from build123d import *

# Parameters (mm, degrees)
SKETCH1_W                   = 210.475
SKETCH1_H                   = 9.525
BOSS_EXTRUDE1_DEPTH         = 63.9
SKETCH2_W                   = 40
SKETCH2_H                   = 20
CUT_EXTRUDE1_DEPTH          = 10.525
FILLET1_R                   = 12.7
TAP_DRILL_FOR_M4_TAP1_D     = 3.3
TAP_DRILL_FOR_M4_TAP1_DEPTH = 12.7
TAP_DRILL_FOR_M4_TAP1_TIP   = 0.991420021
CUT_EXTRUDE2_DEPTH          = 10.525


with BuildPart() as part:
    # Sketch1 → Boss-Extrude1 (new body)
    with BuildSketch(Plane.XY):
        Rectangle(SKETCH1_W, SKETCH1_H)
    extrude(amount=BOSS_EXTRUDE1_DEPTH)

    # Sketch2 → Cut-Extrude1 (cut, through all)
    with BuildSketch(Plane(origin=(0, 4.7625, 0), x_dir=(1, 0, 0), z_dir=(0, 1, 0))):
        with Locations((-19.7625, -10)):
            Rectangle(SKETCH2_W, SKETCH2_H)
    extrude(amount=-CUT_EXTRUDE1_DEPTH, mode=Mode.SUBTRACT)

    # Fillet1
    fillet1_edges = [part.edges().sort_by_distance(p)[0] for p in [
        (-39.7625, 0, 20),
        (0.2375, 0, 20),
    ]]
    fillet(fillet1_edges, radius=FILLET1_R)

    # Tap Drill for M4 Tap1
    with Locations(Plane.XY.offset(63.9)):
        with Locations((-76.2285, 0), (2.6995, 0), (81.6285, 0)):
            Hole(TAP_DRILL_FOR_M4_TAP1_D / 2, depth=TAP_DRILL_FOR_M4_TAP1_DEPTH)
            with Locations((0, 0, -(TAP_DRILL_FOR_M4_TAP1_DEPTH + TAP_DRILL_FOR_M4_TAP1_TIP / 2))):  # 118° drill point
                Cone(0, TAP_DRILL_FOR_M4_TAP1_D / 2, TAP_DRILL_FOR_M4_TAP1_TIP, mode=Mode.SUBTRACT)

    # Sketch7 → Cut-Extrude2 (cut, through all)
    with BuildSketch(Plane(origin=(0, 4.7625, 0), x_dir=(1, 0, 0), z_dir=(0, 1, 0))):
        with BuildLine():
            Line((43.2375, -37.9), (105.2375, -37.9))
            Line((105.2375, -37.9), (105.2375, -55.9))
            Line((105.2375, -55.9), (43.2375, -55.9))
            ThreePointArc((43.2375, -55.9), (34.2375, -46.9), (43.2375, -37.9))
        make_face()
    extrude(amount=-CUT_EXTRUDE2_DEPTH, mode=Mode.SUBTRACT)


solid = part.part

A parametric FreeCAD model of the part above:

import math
import FreeCAD as App
import Part
import Sketcher
from FreeCAD import Vector


def edges_at(feature, points):
    """Names of the edges that pass closest to the given points."""
    edges = feature.Shape.Edges
    near = lambda p: min(range(len(edges)), key=lambda i: edges[i].distToShape(Part.Vertex(*p))[0])
    return sorted({f"Edge{near(p) + 1}" for p in points})


def add_polygon(sketch, points):
    """Adds a closed chain of lines whose ends are joined by coincident constraints."""
    first, n = sketch.GeometryCount, len(points)
    for a, b in zip(points, points[1:] + points[:1]):
        sketch.addGeometry(Part.LineSegment(App.Vector(*a, 0), App.Vector(*b, 0)), False)
    for i in range(n):
        sketch.addConstraint(Sketcher.Constraint("Coincident", first + i, 2, first + (i + 1) % n, 1))

doc = App.newDocument("Part")
body = doc.addObject("PartDesign::Body", "Body")

sketch1 = body.newObject("Sketcher::SketchObject", "Sketch")
sketch1.AttachmentSupport = (doc.getObject("XY_Plane"), [""])
sketch1.MapMode = "FlatFace"
add_polygon(sketch1, [(-105, 5), (-105, -5), (105, -5), (105, 5)])
sketch1.addConstraint([
    Sketcher.Constraint("Vertical", 0),
    Sketcher.Constraint("Horizontal", 1),
    Sketcher.Constraint("Vertical", 2),
    Sketcher.Constraint("Horizontal", 3),
    Sketcher.Constraint("Symmetric", 0, 2, 2, 2, -1, 1),
    Sketcher.Constraint("DistanceX", 1, 1, 1, 2, 210.475),
    Sketcher.Constraint("DistanceY", 0, 2, 0, 1, 9.525),
])
pad1 = body.newObject("PartDesign::Pad", "Pad")
pad1.Profile = sketch1
pad1.Length = 63.9

sketch2 = body.newObject("Sketcher::SketchObject", "Sketch001")
sketch2.AttachmentSupport = (doc.getObject("XZ_Plane"), [""])
sketch2.MapMode = "FlatFace"
sketch2.AttachmentOffset = App.Placement(Vector(0, 0, -4.7625), App.Rotation())
add_polygon(sketch2, [(-40, 0), (-40, 20), (0, 20), (0, 0)])
sketch2.addConstraint([
    Sketcher.Constraint("Vertical", 0),
    Sketcher.Constraint("Horizontal", 1),
    Sketcher.Constraint("Vertical", 2),
    Sketcher.Constraint("Horizontal", 3),
    Sketcher.Constraint("PointOnObject", 2, 2, -1),
    Sketcher.Constraint("DistanceX", 1, 1, 1, 2, 40.0),
    Sketcher.Constraint("DistanceY", 0, 1, 0, 2, 20.0),
    Sketcher.Constraint("DistanceX", 0, 2, -1, 1, 39.7625),
])
pocket1 = body.newObject("PartDesign::Pocket", "Pocket")
pocket1.Profile = sketch2
pocket1.Type = "ThroughAll"
pocket1.Reversed = True
doc.recompute()

fillet = body.newObject("PartDesign::Fillet", "Fillet")
fillet.Base = (pocket1, edges_at(pocket1, [(-39.763, 0, 20), (0.237, 0, 20)]))
fillet.Radius = 12.7

sketch3 = body.newObject("Sketcher::SketchObject", "Sketch002")
sketch3.AttachmentSupport = (doc.getObject("XY_Plane"), [""])
sketch3.MapMode = "FlatFace"
sketch3.AttachmentOffset = App.Placement(Vector(0, 0, 63.9), App.Rotation())
sketch3.addGeometry([
    Part.Circle(Vector(-76.2, 0, 0), Vector(0, 0, 1), 1.6),
    Part.Circle(Vector(2.7, 0, 0), Vector(0, 0, 1), 1.6),
    Part.Circle(Vector(81.6, 0, 0), Vector(0, 0, 1), 1.6),
], False)
sketch3.addConstraint([
    Sketcher.Constraint("Equal", 0, 1),
    Sketcher.Constraint("Equal", 1, 2),
    Sketcher.Constraint("PointOnObject", 0, 3, -1),
    Sketcher.Constraint("PointOnObject", 1, 3, -1),
    Sketcher.Constraint("PointOnObject", 2, 3, -1),
    Sketcher.Constraint("Diameter", 0, 3.3),
    Sketcher.Constraint("DistanceX", 0, 3, 1, 3, 78.928),
    Sketcher.Constraint("DistanceX", 1, 3, 2, 3, 78.929),
    Sketcher.Constraint("DistanceX", 0, 3, -1, 1, 76.2285),
])
doc.recompute()
hole = body.newObject("PartDesign::Hole", "Hole")
hole.Profile = sketch3
hole.ThreadType = "None"
hole.Diameter = 3.3
hole.DepthType = "Dimension"
hole.Depth = 12.7
hole.DrillPoint = "Angled"
hole.DrillPointAngle = 118

sketch4 = body.newObject("Sketcher::SketchObject", "Sketch003")
sketch4.AttachmentSupport = (doc.getObject("XZ_Plane"), [""])
sketch4.MapMode = "FlatFace"
sketch4.AttachmentOffset = App.Placement(Vector(0, 0, -4.7625), App.Rotation())
sketch4.addGeometry([
    Part.LineSegment(Vector(105, 38, 0), Vector(43, 38, 0)),
    Part.ArcOfCircle(Part.Circle(Vector(43, 47, 0), Vector(0, 0, 1), 9), math.radians(90), math.radians(270)),
    Part.LineSegment(Vector(43, 56, 0), Vector(105, 56, 0)),
    Part.LineSegment(Vector(105, 56, 0), Vector(105, 38, 0)),
], False)
sketch4.addConstraint([
    Sketcher.Constraint("Tangent", 0, 2, 1, 2),
    Sketcher.Constraint("Tangent", 1, 1, 2, 1),
    Sketcher.Constraint("Coincident", 2, 2, 3, 1),
    Sketcher.Constraint("Coincident", 3, 2, 0, 1),
    Sketcher.Constraint("Horizontal", 0),
    Sketcher.Constraint("Horizontal", 2),
    Sketcher.Constraint("Vertical", 3),
    Sketcher.Constraint("Radius", 1, 9.0),
    Sketcher.Constraint("DistanceX", 0, 2, 0, 1, 62.0),
    Sketcher.Constraint("DistanceY", -1, 1, 1, 3, 46.9),
    Sketcher.Constraint("DistanceX", -1, 1, 1, 3, 43.2375),
])
pocket2 = body.newObject("PartDesign::Pocket", "Pocket001")
pocket2.Profile = sketch4
pocket2.Type = "ThroughAll"
pocket2.Reversed = True

doc.recompute()
